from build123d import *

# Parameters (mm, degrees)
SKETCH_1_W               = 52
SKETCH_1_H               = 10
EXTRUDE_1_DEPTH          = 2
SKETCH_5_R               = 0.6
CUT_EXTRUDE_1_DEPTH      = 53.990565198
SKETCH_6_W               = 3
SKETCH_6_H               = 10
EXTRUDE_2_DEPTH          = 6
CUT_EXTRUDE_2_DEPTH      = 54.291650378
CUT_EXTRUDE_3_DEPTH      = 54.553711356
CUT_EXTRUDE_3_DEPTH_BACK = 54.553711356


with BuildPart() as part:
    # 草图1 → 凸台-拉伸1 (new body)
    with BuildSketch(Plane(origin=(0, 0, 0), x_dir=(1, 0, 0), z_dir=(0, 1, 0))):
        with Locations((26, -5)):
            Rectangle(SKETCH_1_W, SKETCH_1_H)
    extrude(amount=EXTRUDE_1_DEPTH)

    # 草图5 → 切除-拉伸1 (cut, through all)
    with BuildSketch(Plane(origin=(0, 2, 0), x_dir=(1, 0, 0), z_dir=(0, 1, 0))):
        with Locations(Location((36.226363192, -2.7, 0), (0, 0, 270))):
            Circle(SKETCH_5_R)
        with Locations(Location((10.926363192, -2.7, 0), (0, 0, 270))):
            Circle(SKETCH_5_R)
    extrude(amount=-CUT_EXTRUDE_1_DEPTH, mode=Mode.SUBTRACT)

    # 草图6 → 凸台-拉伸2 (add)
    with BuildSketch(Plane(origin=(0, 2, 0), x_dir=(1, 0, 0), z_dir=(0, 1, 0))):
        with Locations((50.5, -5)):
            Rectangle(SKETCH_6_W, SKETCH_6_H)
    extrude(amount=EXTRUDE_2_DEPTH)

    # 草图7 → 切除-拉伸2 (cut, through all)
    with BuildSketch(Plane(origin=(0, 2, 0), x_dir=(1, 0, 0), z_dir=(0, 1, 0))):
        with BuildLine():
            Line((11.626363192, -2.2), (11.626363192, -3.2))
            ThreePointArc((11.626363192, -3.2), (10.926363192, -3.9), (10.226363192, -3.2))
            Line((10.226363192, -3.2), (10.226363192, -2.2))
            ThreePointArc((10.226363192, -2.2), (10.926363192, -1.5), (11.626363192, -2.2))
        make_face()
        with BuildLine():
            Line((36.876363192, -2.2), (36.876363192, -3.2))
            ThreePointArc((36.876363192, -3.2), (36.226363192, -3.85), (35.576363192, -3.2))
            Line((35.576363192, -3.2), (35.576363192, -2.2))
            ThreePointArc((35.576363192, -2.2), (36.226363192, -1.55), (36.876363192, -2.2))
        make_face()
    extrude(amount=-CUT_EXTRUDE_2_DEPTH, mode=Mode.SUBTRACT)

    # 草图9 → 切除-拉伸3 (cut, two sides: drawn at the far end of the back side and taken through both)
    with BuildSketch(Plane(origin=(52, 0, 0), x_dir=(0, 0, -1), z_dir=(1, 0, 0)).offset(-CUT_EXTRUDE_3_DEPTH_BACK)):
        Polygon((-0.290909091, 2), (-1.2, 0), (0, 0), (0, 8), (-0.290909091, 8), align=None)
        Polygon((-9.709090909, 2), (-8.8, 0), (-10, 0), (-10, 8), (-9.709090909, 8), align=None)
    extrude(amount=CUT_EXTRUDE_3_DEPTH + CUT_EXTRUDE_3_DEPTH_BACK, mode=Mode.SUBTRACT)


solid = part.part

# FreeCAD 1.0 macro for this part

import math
import FreeCAD as App
import Part
import Sketcher

V = App.Vector


def add_polygon(sketch, points):
    """Adds a closed chain of lines whose ends are joined by coincident constraints."""
    first, n = sketch.GeometryCount, len(points)
    for a, b in zip(points, points[1:] + points[:1]):
        sketch.addGeometry(Part.LineSegment(App.Vector(*a, 0), App.Vector(*b, 0)), False)
    for i in range(n):
        sketch.addConstraint(Sketcher.Constraint("Coincident", first + i, 2, first + (i + 1) % n, 1))

doc = App.newDocument("Part")
body = doc.addObject("PartDesign::Body", "Body")

sketch1 = body.newObject("Sketcher::SketchObject", "Sketch")
sketch1.AttachmentSupport = (doc.getObject("XZ_Plane"), [""])
sketch1.MapMode = "FlatFace"
add_polygon(sketch1, [(0, 0), (0, 10), (52, 10), (52, 0)])
sketch1.addConstraint(Sketcher.Constraint("Vertical", 0))
sketch1.addConstraint(Sketcher.Constraint("Horizontal", 1))
sketch1.addConstraint(Sketcher.Constraint("Vertical", 2))
sketch1.addConstraint(Sketcher.Constraint("Horizontal", 3))
sketch1.addConstraint(Sketcher.Constraint("Coincident", 3, 2, -1, 1))
sketch1.addConstraint(Sketcher.Constraint("DistanceX", 1, 1, 1, 2, 52.0))
sketch1.addConstraint(Sketcher.Constraint("DistanceY", 0, 1, 0, 2, 10.0))
pad1 = body.newObject("PartDesign::Pad", "Pad")
pad1.Profile = sketch1
pad1.Length = 2
pad1.Reversed = True

sketch2 = body.newObject("Sketcher::SketchObject", "Sketch001")
sketch2.AttachmentSupport = (doc.getObject("XZ_Plane"), [""])
sketch2.MapMode = "FlatFace"
sketch2.AttachmentOffset = App.Placement(V(0, 0, -2), App.Rotation())
sketch2.addGeometry(Part.Circle(V(36.2, 2.7, 0), V(0, 0, 1), 0.6), False)
sketch2.addGeometry(Part.Circle(V(10.9, 2.7, 0), V(0, 0, 1), 0.6), False)
sketch2.addConstraint(Sketcher.Constraint("Equal", 0, 1))
sketch2.addConstraint(Sketcher.Constraint("Horizontal", 0, 3, 1, 3))
sketch2.addConstraint(Sketcher.Constraint("Diameter", 0, 1.2))
sketch2.addConstraint(Sketcher.Constraint("DistanceY", -1, 1, 0, 3, 2.7))
sketch2.addConstraint(Sketcher.Constraint("DistanceX", 1, 3, 0, 3, 25.3))
sketch2.addConstraint(Sketcher.Constraint("DistanceX", -1, 1, 0, 3, 36.226363))
pocket1 = body.newObject("PartDesign::Pocket", "Pocket")
pocket1.Profile = sketch2
pocket1.Type = "ThroughAll"
pocket1.Reversed = True

sketch3 = body.newObject("Sketcher::SketchObject", "Sketch002")
sketch3.AttachmentSupport = (doc.getObject("XZ_Plane"), [""])
sketch3.MapMode = "FlatFace"
sketch3.AttachmentOffset = App.Placement(V(0, 0, -2), App.Rotation())
add_polygon(sketch3, [(49, 0), (49, 10), (52, 10), (52, 0)])
sketch3.addConstraint(Sketcher.Constraint("Vertical", 0))
sketch3.addConstraint(Sketcher.Constraint("Horizontal", 1))
sketch3.addConstraint(Sketcher.Constraint("Vertical", 2))
sketch3.addConstraint(Sketcher.Constraint("Horizontal", 3))
sketch3.addConstraint(Sketcher.Constraint("PointOnObject", 2, 2, -1))
sketch3.addConstraint(Sketcher.Constraint("DistanceX", 1, 1, 1, 2, 3.0))
sketch3.addConstraint(Sketcher.Constraint("DistanceY", 0, 1, 0, 2, 10.0))
sketch3.addConstraint(Sketcher.Constraint("DistanceX", -1, 1, 0, 2, 49.0))
pad2 = body.newObject("PartDesign::Pad", "Pad001")
pad2.Profile = sketch3
pad2.Length = 6
pad2.Reversed = True

sketch4 = body.newObject("Sketcher::SketchObject", "Sketch003")
sketch4.AttachmentSupport = (doc.getObject("XZ_Plane"), [""])
sketch4.MapMode = "FlatFace"
sketch4.AttachmentOffset = App.Placement(V(0, 0, -2), App.Rotation())
sketch4.addGeometry(Part.LineSegment(V(11.6, 3.2, 0), V(11.6, 2.2, 0)), False)
sketch4.addGeometry(Part.ArcOfCircle(Part.Circle(V(10.9, 2.2, 0), V(0, 0, 1), 0.7), math.radians(180), math.radians(360)), False)
sketch4.addGeometry(Part.LineSegment(V(10.2, 2.2, 0), V(10.2, 3.2, 0)), False)
sketch4.addGeometry(Part.ArcOfCircle(Part.Circle(V(10.9, 3.2, 0), V(0, 0, 1), 0.7), math.radians(0), math.radians(180)), False)
sketch4.addGeometry(Part.LineSegment(V(36.9, 3.2, 0), V(36.9, 2.2, 0)), False)
sketch4.addGeometry(Part.ArcOfCircle(Part.Circle(V(36.2, 2.2, 0), V(0, 0, 1), 0.7), math.radians(180), math.radians(360)), False)
sketch4.addGeometry(Part.LineSegment(V(35.6, 2.2, 0), V(35.6, 3.2, 0)), False)
sketch4.addGeometry(Part.ArcOfCircle(Part.Circle(V(36.2, 3.2, 0), V(0, 0, 1), 0.7), math.radians(0), math.radians(180)), False)
sketch4.addConstraint(Sketcher.Constraint("Tangent", 0, 2, 1, 2))
sketch4.addConstraint(Sketcher.Constraint("Tangent", 1, 1, 2, 1))
sketch4.addConstraint(Sketcher.Constraint("Tangent", 2, 2, 3, 2))
sketch4.addConstraint(Sketcher.Constraint("Tangent", 3, 1, 0, 1))
sketch4.addConstraint(Sketcher.Constraint("Tangent", 4, 2, 5, 2))
sketch4.addConstraint(Sketcher.Constraint("Tangent", 5, 1, 6, 1))
sketch4.addConstraint(Sketcher.Constraint("Tangent", 6, 2, 7, 2))
sketch4.addConstraint(Sketcher.Constraint("Tangent", 7, 1, 4, 1))
sketch4.addConstraint(Sketcher.Constraint("Vertical", 0))
sketch4.addConstraint(Sketcher.Constraint("Vertical", 2))
sketch4.addConstraint(Sketcher.Constraint("Vertical", 4))
sketch4.addConstraint(Sketcher.Constraint("Vertical", 6))
sketch4.addConstraint(Sketcher.Constraint("Horizontal", 1, 3, 5, 3))
sketch4.addConstraint(Sketcher.Constraint("Horizontal", 3, 3, 7, 3))
sketch4.addConstraint(Sketcher.Constraint("Radius", 1, 0.7))
sketch4.addConstraint(Sketcher.Constraint("DistanceY", 0, 2, 0, 1, 1.0))
sketch4.addConstraint(Sketcher.Constraint("Radius", 5, 0.65))
sketch4.addConstraint(Sketcher.Constraint("DistanceX", 1, 1, 5, 3, 26.0))
sketch4.addConstraint(Sketcher.Constraint("DistanceY", -1, 1, 1, 3, 2.2))
sketch4.addConstraint(Sketcher.Constraint("DistanceX", -1, 1, 1, 3, 10.926363))
pocket2 = body.newObject("PartDesign::Pocket", "Pocket001")
pocket2.Profile = sketch4
pocket2.Type = "ThroughAll"
pocket2.Reversed = True

sketch5 = body.newObject("Sketcher::SketchObject", "Sketch004")
sketch5.AttachmentSupport = (doc.getObject("YZ_Plane"), [""])
sketch5.MapMode = "FlatFace"
sketch5.AttachmentOffset = App.Placement(V(0, 0, 52), App.Rotation())
add_polygon(sketch5, [(2, 0.29), (0, 1.2), (0, 0), (8, 0), (8, 0.29)])
add_polygon(sketch5, [(0, 8.8), (2, 9.71), (8, 9.71), (8, 10), (0, 10)])
sketch5.addConstraint(Sketcher.Constraint("Vertical", 1))
sketch5.addConstraint(Sketcher.Constraint("Horizontal", 2))
sketch5.addConstraint(Sketcher.Constraint("Vertical", 3))
sketch5.addConstraint(Sketcher.Constraint("Horizontal", 4))
sketch5.addConstraint(Sketcher.Constraint("Horizontal", 6))
sketch5.addConstraint(Sketcher.Constraint("Vertical", 7))
sketch5.addConstraint(Sketcher.Constraint("Horizontal", 8))
sketch5.addConstraint(Sketcher.Constraint("Vertical", 9))
sketch5.addConstraint(Sketcher.Constraint("Coincident", 1, 2, -1, 1))
sketch5.addConstraint(Sketcher.Constraint("PointOnObject", 8, 2, -2))
sketch5.addConstraint(Sketcher.Constraint("Vertical", 4, 2, 5, 2))
sketch5.addConstraint(Sketcher.Constraint("Vertical", 3, 2, 6, 2))
sketch5.addConstraint(Sketcher.Constraint("Equal", 3, 7))
sketch5.addConstraint(Sketcher.Constraint("Equal", 1, 9))
sketch5.addConstraint(Sketcher.Constraint("DistanceX", 2, 1, 2, 2, 8.0))
sketch5.addConstraint(Sketcher.Constraint("DistanceX", 4, 2, 4, 1, 6.0))
sketch5.addConstraint(Sketcher.Constraint("DistanceY", 1, 2, 1, 1, 1.2))
sketch5.addConstraint(Sketcher.Constraint("DistanceY", -1, 1, 7, 2, 10.0))
sketch5.addConstraint(Sketcher.Constraint("DistanceY", 3, 1, 3, 2, 0.290909))
pocket3 = body.newObject("PartDesign::Pocket", "Pocket002")
pocket3.Profile = sketch5
pocket3.Type = "ThroughAll"
pocket3.Midplane = True

doc.recompute()
